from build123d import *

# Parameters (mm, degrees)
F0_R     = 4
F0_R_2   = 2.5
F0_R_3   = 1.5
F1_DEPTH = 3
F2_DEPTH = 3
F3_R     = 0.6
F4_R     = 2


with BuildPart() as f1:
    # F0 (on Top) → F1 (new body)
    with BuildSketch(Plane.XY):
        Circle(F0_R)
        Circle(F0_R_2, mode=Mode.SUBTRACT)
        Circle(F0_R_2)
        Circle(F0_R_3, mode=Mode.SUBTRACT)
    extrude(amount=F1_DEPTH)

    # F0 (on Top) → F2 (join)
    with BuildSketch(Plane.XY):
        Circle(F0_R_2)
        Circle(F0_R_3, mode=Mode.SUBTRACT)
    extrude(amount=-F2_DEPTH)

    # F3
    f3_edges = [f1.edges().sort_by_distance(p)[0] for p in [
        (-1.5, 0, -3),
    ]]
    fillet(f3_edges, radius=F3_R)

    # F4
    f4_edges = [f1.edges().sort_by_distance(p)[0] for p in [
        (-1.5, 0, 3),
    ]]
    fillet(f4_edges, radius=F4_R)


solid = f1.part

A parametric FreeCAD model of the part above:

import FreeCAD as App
import Part
import Sketcher


def edges_at(feature, points):
    """Names of the edges that pass closest to the given points."""
    edges = feature.Shape.Edges
    near = lambda p: min(range(len(edges)), key=lambda i: edges[i].distToShape(Part.Vertex(*p))[0])
    return sorted({f"Edge{near(p) + 1}" for p in points})

doc = App.newDocument("Part")
body = doc.addObject("PartDesign::Body", "Body")

sketch1 = doc.addObject("Sketcher::SketchObject", "Sketch")
body.addObject(sketch1)
sketch1.AttachmentSupport = (doc.XY_Plane, [""])
sketch1.MapMode = "FlatFace"
sketch1.addGeometry([
    Part.Circle(App.Vector(0, 0, 0), App.Vector(0, 0, 1), 4),
    Part.Circle(App.Vector(0, 0, 0), App.Vector(0, 0, 1), 1.5),
], False)
sketch1.addConstraint([
    Sketcher.Constraint("Coincident", 0, 3, -1, 1),
    Sketcher.Constraint("Coincident", 1, 3, -1, 1),
    Sketcher.Constraint("Diameter", 0, 8.0),
    Sketcher.Constraint("Diameter", 1, 3.0),
])
pad1 = doc.addObject("PartDesign::Pad", "Pad")
body.addObject(pad1)
pad1.Profile = sketch1
pad1.Length = 3

sketch2 = doc.addObject("Sketcher::SketchObject", "Sketch001")
body.addObject(sketch2)
sketch2.AttachmentSupport = (doc.XY_Plane, [""])
sketch2.MapMode = "FlatFace"
sketch2.addGeometry([
    Part.Circle(App.Vector(0, 0, 0), App.Vector(0, 0, 1), 2.5),
    Part.Circle(App.Vector(0, 0, 0), App.Vector(0, 0, 1), 1.5),
], False)
sketch2.addConstraint([
    Sketcher.Constraint("Coincident", 0, 3, -1, 1),
    Sketcher.Constraint("Coincident", 1, 3, -1, 1),
    Sketcher.Constraint("Diameter", 0, 5.0),
    Sketcher.Constraint("Diameter", 1, 3.0),
])
pad2 = doc.addObject("PartDesign::Pad", "Pad001")
body.addObject(pad2)
pad2.Profile = sketch2
pad2.Length = 3
pad2.Reversed = True
doc.recompute()

fillet = doc.addObject("PartDesign::Fillet", "Fillet")
body.addObject(fillet)
fillet.Base = (pad2, edges_at(pad2, [(-1.5, 0, -3)]))
fillet.Radius = 0.6
doc.recompute()

fillet2 = doc.addObject("PartDesign::Fillet", "Fillet001")
body.addObject(fillet2)
fillet2.Base = (fillet, edges_at(fillet, [(-1.5, 0, 3)]))
fillet2.Radius = 2

doc.recompute()
